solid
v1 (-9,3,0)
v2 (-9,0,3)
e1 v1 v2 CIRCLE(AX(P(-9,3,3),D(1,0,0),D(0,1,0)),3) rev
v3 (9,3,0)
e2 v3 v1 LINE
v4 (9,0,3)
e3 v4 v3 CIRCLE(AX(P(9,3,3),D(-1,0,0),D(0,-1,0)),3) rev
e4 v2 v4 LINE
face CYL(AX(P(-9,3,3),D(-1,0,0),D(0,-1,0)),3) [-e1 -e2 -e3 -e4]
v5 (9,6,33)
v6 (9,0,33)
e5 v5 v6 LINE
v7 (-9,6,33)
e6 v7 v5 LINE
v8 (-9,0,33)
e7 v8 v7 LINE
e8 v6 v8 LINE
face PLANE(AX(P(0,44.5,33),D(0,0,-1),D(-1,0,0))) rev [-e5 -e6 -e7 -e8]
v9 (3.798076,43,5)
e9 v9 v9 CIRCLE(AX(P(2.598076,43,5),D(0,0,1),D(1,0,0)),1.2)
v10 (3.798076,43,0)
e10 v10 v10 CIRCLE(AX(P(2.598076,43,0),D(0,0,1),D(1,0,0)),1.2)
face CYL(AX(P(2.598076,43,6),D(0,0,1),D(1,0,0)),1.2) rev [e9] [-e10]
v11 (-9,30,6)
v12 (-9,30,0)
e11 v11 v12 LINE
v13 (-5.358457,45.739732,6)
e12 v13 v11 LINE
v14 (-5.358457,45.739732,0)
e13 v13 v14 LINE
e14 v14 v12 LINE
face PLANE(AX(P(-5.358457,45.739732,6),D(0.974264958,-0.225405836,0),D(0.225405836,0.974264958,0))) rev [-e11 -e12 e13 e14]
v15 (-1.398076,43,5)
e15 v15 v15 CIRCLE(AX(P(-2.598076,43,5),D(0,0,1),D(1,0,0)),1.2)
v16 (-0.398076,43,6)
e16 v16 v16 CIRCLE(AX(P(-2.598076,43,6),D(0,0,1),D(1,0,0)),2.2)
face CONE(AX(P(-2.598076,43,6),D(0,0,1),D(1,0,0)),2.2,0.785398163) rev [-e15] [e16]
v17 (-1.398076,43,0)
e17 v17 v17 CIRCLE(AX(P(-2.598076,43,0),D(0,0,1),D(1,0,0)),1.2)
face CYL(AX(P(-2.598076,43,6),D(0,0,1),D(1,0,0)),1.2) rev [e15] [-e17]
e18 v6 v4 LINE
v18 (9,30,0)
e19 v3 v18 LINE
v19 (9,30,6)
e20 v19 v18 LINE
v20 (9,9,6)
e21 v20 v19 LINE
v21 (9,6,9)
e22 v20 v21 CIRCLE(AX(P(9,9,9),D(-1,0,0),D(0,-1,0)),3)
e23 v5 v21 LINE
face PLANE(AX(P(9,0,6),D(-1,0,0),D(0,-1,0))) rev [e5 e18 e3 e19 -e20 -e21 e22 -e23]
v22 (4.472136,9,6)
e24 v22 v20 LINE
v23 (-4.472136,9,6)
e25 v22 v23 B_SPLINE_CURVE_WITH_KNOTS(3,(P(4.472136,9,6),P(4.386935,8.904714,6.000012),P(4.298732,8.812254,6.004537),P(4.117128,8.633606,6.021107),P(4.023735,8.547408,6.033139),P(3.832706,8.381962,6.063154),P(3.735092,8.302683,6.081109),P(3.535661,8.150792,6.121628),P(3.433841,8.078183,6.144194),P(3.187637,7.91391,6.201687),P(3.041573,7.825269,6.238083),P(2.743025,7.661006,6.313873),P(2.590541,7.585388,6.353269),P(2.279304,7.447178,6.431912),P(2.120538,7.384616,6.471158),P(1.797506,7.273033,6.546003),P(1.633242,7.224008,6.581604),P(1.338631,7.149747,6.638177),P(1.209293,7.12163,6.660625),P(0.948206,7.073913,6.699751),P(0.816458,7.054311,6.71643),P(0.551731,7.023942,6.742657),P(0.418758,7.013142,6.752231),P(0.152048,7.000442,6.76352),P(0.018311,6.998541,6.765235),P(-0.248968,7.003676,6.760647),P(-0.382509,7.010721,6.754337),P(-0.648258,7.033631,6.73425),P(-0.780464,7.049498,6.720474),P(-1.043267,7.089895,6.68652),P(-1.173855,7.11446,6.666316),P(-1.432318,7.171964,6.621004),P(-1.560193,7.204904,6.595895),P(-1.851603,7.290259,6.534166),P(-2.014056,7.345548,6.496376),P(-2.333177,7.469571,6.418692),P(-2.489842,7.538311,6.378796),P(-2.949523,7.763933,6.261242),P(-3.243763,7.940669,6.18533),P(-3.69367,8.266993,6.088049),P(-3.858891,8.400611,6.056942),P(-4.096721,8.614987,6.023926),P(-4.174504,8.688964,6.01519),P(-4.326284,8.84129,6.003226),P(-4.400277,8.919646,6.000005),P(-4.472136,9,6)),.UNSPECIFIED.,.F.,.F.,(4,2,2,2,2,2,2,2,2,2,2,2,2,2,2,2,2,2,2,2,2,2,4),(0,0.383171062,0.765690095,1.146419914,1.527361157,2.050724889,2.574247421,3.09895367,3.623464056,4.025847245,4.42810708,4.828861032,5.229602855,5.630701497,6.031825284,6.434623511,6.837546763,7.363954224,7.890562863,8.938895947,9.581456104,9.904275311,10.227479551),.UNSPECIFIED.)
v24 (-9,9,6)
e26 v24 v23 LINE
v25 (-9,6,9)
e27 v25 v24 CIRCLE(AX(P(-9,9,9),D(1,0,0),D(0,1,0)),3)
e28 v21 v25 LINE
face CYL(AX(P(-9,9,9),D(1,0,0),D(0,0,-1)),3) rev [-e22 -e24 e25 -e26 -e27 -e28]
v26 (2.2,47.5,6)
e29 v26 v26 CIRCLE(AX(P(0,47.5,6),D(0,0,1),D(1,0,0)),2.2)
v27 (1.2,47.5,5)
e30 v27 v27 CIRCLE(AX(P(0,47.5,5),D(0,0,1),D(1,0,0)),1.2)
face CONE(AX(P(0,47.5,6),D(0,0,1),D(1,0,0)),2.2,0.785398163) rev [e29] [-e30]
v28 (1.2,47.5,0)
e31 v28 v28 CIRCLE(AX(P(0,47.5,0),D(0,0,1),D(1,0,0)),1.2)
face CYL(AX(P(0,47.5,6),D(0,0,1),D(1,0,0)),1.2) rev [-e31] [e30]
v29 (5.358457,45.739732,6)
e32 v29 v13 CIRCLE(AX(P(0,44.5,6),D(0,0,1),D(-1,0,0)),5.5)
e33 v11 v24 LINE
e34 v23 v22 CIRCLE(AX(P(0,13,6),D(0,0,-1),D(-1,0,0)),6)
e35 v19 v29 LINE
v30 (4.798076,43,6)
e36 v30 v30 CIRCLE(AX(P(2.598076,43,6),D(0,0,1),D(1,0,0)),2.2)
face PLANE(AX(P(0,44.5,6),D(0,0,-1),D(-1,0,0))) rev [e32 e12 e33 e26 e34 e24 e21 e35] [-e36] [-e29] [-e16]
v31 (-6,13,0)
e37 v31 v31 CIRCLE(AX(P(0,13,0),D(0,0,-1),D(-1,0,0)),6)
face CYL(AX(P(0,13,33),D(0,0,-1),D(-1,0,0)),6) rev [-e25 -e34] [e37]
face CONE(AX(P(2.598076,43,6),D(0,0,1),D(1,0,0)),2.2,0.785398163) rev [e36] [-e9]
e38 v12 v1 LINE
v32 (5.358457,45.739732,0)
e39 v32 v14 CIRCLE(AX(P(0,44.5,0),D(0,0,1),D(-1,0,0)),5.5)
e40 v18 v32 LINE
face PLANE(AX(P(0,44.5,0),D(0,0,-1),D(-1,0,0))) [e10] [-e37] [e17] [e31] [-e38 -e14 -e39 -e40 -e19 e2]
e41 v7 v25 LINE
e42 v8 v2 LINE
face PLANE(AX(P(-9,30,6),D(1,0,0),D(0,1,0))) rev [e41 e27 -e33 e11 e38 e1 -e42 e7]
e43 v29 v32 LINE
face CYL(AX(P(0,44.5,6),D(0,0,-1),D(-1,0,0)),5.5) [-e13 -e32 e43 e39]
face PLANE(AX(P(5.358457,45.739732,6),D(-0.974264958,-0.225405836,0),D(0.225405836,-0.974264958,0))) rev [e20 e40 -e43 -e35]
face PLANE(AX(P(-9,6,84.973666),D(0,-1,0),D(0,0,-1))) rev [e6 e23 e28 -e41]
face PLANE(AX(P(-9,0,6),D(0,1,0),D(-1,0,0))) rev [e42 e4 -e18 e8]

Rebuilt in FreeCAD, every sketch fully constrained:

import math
import FreeCAD as App
import Part
import Sketcher
from FreeCAD import Vector


def edges_at(feature, points):
    """Names of the edges that pass closest to the given points."""
    edges = feature.Shape.Edges
    near = lambda p: min(range(len(edges)), key=lambda i: edges[i].distToShape(Part.Vertex(*p))[0])
    return sorted({f"Edge{near(p) + 1}" for p in points})

doc = App.newDocument("Part")
body = doc.addObject("PartDesign::Body", "Body")

sketch1 = body.newObject("Sketcher::SketchObject", "Sketch")
sketch1.AttachmentSupport = (doc.getObject("XY_Plane"), [""])
sketch1.MapMode = "FlatFace"
sketch1.addGeometry(Part.LineSegment(Vector(-9, 30, 0), Vector(-9, 0, 0)), False)
sketch1.addGeometry(Part.LineSegment(Vector(-9, 0, 0), Vector(9, 0, 0)), False)
sketch1.addGeometry(Part.LineSegment(Vector(9, 0, 0), Vector(9, 30, 0)), False)
sketch1.addGeometry(Part.LineSegment(Vector(9, 30, 0), Vector(5.358457, 45.739732, 0)), False)
sketch1.addGeometry(Part.ArcOfCircle(Part.Circle(Vector(0, 44.5, 0), Vector(0, 0, 1), 5.5), math.radians(13.026744), math.radians(166.973256)), False)
sketch1.addGeometry(Part.LineSegment(Vector(-5.358457, 45.739732, 0), Vector(-9, 30, 0)), False)
sketch1.addConstraint(Sketcher.Constraint("Coincident", 0, 2, 1, 1))
sketch1.addConstraint(Sketcher.Constraint("Coincident", 1, 2, 2, 1))
sketch1.addConstraint(Sketcher.Constraint("Coincident", 2, 2, 3, 1))
sketch1.addConstraint(Sketcher.Constraint("Tangent", 3, 2, 4, 1))
sketch1.addConstraint(Sketcher.Constraint("Tangent", 4, 2, 5, 1))
sketch1.addConstraint(Sketcher.Constraint("Coincident", 5, 2, 0, 1))
sketch1.addConstraint(Sketcher.Constraint("Vertical", 0))
sketch1.addConstraint(Sketcher.Constraint("Horizontal", 1))
sketch1.addConstraint(Sketcher.Constraint("Vertical", 2))
sketch1.addConstraint(Sketcher.Constraint("Symmetric", 0, 2, 1, 2, -1, 1))
sketch1.addConstraint(Sketcher.Constraint("Symmetric", 3, 2, 4, 2, -2))
sketch1.addConstraint(Sketcher.Constraint("Radius", 4, 5.5))
sketch1.addConstraint(Sketcher.Constraint("DistanceX", 1, 1, 1, 2, 18.0))
sketch1.addConstraint(Sketcher.Constraint("DistanceY", 0, 2, 0, 1, 30.0))
sketch1.addConstraint(Sketcher.Constraint("DistanceY", -1, 1, 4, 3, 44.5))
pad1 = body.newObject("PartDesign::Pad", "Pad")
pad1.Profile = sketch1
pad1.Length = 6

sketch2 = body.newObject("Sketcher::SketchObject", "Sketch001")
sketch2.AttachmentSupport = (doc.getObject("XY_Plane"), [""])
sketch2.MapMode = "FlatFace"
sketch2.AttachmentOffset = App.Placement(Vector(0, 0, 6), App.Rotation())
sketch2.addGeometry(Part.LineSegment(Vector(-9, 6, 0), Vector(-9, 0, 0)), False)
sketch2.addGeometry(Part.LineSegment(Vector(-9, 0, 0), Vector(9, 0, 0)), False)
sketch2.addGeometry(Part.LineSegment(Vector(9, 0, 0), Vector(9, 6, 0)), False)
sketch2.addGeometry(Part.LineSegment(Vector(9, 6, 0), Vector(-9, 6, 0)), False)
sketch2.addConstraint(Sketcher.Constraint("Coincident", 0, 2, 1, 1))
sketch2.addConstraint(Sketcher.Constraint("Coincident", 1, 2, 2, 1))
sketch2.addConstraint(Sketcher.Constraint("Coincident", 2, 2, 3, 1))
sketch2.addConstraint(Sketcher.Constraint("Coincident", 3, 2, 0, 1))
sketch2.addConstraint(Sketcher.Constraint("Vertical", 0))
sketch2.addConstraint(Sketcher.Constraint("Horizontal", 1))
sketch2.addConstraint(Sketcher.Constraint("Vertical", 2))
sketch2.addConstraint(Sketcher.Constraint("Horizontal", 3))
sketch2.addConstraint(Sketcher.Constraint("Symmetric", 0, 2, 1, 2, -1, 1))
sketch2.addConstraint(Sketcher.Constraint("DistanceX", 1, 1, 1, 2, 18.0))
sketch2.addConstraint(Sketcher.Constraint("DistanceY", 0, 2, 0, 1, 6.0))
pad2 = body.newObject("PartDesign::Pad", "Pad001")
pad2.Profile = sketch2
pad2.Length = 27
doc.recompute()

fillet = body.newObject("PartDesign::Fillet", "Fillet")
fillet.Base = (pad2, edges_at(pad2, [(0, 6, 6), (0, 0, 0)]))
fillet.Radius = 3

sketch3 = body.newObject("Sketcher::SketchObject", "Sketch002")
sketch3.AttachmentSupport = (doc.getObject("XY_Plane"), [""])
sketch3.MapMode = "FlatFace"
sketch3.addGeometry(Part.Circle(Vector(0, 13, 0), Vector(0, 0, 1), 6), False)
sketch3.addConstraint(Sketcher.Constraint("PointOnObject", 0, 3, -2))
sketch3.addConstraint(Sketcher.Constraint("Diameter", 0, 12.0))
sketch3.addConstraint(Sketcher.Constraint("DistanceY", -1, 1, 0, 3, 13.0))
pocket1 = body.newObject("PartDesign::Pocket", "Pocket")
pocket1.Profile = sketch3
pocket1.Length = 33
pocket1.Reversed = True

sketch4 = body.newObject("Sketcher::SketchObject", "Sketch003")
sketch4.AttachmentSupport = (doc.getObject("XY_Plane"), [""])
sketch4.MapMode = "FlatFace"
sketch4.AttachmentOffset = App.Placement(Vector(0, 0, 6), App.Rotation())
sketch4.addGeometry(Part.Circle(Vector(0, 47.5, 0), Vector(0, 0, 1), 1.2), False)
sketch4.addConstraint(Sketcher.Constraint("PointOnObject", 0, 3, -2))
sketch4.addConstraint(Sketcher.Constraint("Diameter", 0, 2.4))
sketch4.addConstraint(Sketcher.Constraint("DistanceY", -1, 1, 0, 3, 47.5))
doc.recompute()
hole = body.newObject("PartDesign::Hole", "Hole")
hole.Profile = sketch4
hole.ThreadType = "None"
hole.Diameter = 2.4
hole.DepthType = "ThroughAll"
hole.HoleCutType = "Countersink"
hole.HoleCutDiameter = 4.4
hole.HoleCutCountersinkAngle = 90
doc.recompute()

datumline = body.newObject("PartDesign::Line", "DatumLine")
datumline.Placement = App.Placement(Vector(0, 44.5, 0), App.Rotation(Vector(0, 0, 1), Vector(0, 0, 1)))
polarpattern = body.newObject("PartDesign::PolarPattern", "PolarPattern")
polarpattern.Originals = [hole]
polarpattern.Axis = (datumline, [""])
polarpattern.Angle = 360
polarpattern.Occurrences = 3
body.Tip = polarpattern

doc.recompute()
